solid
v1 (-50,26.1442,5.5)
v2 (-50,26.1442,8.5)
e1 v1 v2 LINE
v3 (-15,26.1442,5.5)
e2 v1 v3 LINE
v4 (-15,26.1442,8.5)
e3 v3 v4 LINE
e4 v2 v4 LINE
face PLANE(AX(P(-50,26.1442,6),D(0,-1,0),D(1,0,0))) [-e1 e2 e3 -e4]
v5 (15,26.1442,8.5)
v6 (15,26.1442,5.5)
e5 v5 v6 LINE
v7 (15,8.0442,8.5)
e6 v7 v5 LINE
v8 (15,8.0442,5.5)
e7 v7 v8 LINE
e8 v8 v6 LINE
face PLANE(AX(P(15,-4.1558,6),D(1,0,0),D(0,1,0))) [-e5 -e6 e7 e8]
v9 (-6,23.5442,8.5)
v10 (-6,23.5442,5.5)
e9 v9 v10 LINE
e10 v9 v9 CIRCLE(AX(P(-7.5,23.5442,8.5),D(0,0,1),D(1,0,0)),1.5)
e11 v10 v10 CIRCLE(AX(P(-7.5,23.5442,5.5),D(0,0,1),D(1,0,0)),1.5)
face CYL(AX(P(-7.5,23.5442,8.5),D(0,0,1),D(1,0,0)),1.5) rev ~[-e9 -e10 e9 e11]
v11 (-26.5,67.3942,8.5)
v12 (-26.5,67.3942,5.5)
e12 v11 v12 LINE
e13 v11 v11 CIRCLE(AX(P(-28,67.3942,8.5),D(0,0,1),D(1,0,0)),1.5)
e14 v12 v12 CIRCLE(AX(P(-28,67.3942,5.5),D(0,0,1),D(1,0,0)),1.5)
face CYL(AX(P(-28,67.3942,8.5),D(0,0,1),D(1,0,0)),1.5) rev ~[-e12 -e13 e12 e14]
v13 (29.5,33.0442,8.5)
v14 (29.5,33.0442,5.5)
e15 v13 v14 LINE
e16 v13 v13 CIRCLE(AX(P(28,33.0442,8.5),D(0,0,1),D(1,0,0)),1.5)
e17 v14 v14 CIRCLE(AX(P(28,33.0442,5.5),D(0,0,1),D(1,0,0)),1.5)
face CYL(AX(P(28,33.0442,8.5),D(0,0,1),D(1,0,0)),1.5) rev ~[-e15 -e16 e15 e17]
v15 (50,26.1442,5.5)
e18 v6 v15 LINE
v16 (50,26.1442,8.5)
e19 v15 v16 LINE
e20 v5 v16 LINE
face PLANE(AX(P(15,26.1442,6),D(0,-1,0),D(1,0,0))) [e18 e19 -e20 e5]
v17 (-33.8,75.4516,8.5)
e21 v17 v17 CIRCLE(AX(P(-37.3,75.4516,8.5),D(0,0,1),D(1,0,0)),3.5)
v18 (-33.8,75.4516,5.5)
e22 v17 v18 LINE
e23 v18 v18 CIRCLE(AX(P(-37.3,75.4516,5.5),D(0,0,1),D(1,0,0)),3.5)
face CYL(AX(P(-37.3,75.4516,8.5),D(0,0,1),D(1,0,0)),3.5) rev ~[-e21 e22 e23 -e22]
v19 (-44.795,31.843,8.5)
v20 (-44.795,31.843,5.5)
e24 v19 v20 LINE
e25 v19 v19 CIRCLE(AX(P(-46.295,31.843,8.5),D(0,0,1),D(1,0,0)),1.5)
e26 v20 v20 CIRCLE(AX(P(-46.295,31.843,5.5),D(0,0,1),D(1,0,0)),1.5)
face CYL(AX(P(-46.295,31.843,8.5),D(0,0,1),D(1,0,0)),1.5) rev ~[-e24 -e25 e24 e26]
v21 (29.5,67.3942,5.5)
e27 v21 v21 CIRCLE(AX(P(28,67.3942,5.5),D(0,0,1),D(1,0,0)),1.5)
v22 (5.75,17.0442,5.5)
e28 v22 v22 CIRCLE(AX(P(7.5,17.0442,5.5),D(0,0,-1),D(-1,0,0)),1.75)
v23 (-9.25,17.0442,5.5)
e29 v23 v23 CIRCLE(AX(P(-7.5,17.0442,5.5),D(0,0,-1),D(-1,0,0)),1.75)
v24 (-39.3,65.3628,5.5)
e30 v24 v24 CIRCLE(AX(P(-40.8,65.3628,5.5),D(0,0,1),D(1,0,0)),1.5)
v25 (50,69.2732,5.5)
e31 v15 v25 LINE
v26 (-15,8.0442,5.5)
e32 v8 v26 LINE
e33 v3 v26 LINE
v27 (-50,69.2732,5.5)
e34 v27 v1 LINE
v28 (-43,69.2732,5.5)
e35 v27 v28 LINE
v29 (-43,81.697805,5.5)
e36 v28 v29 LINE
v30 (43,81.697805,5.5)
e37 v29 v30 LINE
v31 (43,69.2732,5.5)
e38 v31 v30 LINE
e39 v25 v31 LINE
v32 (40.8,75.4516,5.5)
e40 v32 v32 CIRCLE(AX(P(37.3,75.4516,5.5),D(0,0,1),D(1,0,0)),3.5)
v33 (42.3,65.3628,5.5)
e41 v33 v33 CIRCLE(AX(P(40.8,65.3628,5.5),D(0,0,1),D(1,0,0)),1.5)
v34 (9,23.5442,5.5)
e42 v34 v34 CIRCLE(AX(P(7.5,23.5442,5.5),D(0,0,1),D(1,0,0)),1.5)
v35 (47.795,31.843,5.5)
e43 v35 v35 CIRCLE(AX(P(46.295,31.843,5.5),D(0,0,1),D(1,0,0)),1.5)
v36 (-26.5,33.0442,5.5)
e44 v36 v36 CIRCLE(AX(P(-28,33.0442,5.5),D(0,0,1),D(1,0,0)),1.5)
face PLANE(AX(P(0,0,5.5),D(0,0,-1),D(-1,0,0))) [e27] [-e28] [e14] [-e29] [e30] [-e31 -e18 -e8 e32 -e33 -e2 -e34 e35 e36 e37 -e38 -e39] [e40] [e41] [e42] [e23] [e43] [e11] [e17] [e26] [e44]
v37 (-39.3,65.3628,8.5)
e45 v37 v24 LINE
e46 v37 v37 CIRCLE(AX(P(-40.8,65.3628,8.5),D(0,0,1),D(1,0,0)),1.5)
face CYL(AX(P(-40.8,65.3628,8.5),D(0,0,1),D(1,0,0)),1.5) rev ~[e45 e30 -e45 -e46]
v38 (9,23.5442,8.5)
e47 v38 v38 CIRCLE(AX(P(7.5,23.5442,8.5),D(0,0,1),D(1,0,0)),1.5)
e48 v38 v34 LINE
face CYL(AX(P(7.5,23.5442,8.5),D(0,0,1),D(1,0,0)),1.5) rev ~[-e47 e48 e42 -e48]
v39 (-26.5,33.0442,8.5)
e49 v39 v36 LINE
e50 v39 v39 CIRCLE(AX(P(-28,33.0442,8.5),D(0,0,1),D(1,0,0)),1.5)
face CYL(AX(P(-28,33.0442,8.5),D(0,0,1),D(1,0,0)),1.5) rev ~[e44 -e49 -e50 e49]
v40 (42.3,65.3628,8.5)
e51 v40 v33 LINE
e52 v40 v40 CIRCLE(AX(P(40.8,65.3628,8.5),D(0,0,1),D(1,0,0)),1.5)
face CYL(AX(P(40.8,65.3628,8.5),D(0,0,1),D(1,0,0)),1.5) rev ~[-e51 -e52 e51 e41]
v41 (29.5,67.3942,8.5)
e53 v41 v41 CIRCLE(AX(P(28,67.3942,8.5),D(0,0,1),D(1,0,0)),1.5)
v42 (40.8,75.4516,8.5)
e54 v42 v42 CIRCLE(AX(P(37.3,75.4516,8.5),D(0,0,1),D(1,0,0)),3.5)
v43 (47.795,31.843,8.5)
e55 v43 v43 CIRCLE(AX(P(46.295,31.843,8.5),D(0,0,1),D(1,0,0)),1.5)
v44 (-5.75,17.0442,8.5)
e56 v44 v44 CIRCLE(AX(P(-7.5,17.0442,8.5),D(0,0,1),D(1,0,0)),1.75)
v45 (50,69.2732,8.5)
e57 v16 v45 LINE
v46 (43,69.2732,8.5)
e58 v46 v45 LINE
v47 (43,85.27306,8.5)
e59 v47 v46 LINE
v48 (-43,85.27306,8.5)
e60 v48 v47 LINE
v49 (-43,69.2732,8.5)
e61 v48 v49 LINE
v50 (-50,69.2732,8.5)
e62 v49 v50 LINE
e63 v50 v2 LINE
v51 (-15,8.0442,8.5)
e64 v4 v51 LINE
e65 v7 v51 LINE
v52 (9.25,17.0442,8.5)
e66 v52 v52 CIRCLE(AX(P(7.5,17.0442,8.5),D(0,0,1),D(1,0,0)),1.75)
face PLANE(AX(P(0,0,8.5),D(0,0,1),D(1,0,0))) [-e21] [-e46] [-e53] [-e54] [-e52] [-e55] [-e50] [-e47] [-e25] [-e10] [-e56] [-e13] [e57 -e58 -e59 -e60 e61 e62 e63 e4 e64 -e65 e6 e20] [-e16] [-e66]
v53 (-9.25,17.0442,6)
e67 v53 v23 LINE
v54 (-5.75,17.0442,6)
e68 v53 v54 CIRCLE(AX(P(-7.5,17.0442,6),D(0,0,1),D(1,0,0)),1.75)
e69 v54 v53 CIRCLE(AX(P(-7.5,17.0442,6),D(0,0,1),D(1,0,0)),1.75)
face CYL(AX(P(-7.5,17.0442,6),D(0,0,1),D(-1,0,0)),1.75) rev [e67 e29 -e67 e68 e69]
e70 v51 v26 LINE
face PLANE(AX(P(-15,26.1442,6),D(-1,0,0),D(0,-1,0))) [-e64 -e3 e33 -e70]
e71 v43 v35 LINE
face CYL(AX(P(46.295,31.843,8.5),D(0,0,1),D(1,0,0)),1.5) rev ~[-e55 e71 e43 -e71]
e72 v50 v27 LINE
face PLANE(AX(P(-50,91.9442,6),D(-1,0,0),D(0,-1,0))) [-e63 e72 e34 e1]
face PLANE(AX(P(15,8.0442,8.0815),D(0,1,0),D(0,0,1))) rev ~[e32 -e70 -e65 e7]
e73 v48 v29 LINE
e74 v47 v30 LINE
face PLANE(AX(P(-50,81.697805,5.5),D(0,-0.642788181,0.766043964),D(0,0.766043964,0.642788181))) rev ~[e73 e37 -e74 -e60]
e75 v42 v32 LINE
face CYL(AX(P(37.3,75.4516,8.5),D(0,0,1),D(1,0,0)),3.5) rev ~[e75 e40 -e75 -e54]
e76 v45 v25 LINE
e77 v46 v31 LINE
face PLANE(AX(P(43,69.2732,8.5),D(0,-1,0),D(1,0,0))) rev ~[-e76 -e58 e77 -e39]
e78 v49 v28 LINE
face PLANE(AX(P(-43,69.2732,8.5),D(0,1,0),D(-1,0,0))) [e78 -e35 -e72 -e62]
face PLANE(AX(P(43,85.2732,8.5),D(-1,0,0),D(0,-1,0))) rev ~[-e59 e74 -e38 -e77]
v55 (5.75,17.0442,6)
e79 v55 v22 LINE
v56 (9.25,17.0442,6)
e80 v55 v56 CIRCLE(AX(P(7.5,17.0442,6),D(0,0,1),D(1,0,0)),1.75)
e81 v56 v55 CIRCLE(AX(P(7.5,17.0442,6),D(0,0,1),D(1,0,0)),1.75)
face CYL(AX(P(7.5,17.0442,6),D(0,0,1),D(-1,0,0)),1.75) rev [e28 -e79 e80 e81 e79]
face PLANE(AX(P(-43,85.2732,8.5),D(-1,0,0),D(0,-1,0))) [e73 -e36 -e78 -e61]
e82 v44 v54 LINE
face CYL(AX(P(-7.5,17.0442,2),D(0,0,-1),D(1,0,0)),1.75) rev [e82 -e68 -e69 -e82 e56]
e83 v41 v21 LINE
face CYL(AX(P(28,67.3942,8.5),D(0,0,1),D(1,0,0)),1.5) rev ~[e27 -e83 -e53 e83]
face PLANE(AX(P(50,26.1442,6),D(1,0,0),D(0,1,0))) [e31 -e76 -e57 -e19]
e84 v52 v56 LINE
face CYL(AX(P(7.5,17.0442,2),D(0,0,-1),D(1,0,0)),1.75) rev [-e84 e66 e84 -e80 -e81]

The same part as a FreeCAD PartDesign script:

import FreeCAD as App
import Part
import Sketcher
Q = App.Units.Quantity

doc = App.newDocument("Part")
body = doc.addObject("PartDesign::Body", "Body")

# Sketch on XY plane
sketch1 = body.newObject("Sketcher::SketchObject", "Sketch")
sketch1.AttachmentSupport = (doc.getObject("XY_Plane"), [""])
sketch1.MapMode = "FlatFace"
sketch1.addGeometry(Part.LineSegment(App.Vector(15, -4.2, 0), App.Vector(15, 26.1, 0)), False)
sketch1.addGeometry(Part.LineSegment(App.Vector(15, 26.1, 0), App.Vector(50, 26.1, 0)), False)
sketch1.addGeometry(Part.LineSegment(App.Vector(50, 26.1, 0), App.Vector(50, 91.9, 0)), False)
sketch1.addGeometry(Part.LineSegment(App.Vector(50, 91.9, 0), App.Vector(-50, 91.9, 0)), False)
sketch1.addGeometry(Part.LineSegment(App.Vector(-50, 91.9, 0), App.Vector(-50, 26.1, 0)), False)
sketch1.addGeometry(Part.LineSegment(App.Vector(-50, 26.1, 0), App.Vector(-15, 26.1, 0)), False)
sketch1.addGeometry(Part.LineSegment(App.Vector(-15, 26.1, 0), App.Vector(-15, -4.2, 0)), False)
sketch1.addGeometry(Part.LineSegment(App.Vector(-15, -4.2, 0), App.Vector(15, -4.2, 0)), False)
sketch1.addGeometry(Part.Circle(App.Vector(-7.5, -1, 0), App.Vector(0, 0, 1), 1.8), False)
sketch1.addGeometry(Part.Circle(App.Vector(7.5, -1, 0), App.Vector(0, 0, 1), 1.8), False)
sketch1.addGeometry(Part.Circle(App.Vector(-7.5, 17, 0), App.Vector(0, 0, 1), 1.8), False)
sketch1.addGeometry(Part.Circle(App.Vector(7.5, 17, 0), App.Vector(0, 0, 1), 1.8), False)
sketch1.addConstraint(Sketcher.Constraint("Coincident", 0, 2, 1, 1))
sketch1.addConstraint(Sketcher.Constraint("Coincident", 1, 2, 2, 1))
sketch1.addConstraint(Sketcher.Constraint("Coincident", 2, 2, 3, 1))
sketch1.addConstraint(Sketcher.Constraint("Coincident", 3, 2, 4, 1))
sketch1.addConstraint(Sketcher.Constraint("Coincident", 4, 2, 5, 1))
sketch1.addConstraint(Sketcher.Constraint("Coincident", 5, 2, 6, 1))
sketch1.addConstraint(Sketcher.Constraint("Coincident", 6, 2, 7, 1))
sketch1.addConstraint(Sketcher.Constraint("Coincident", 7, 2, 0, 1))
sketch1.addConstraint(Sketcher.Constraint("Vertical", 0))
sketch1.addConstraint(Sketcher.Constraint("Horizontal", 1))
sketch1.addConstraint(Sketcher.Constraint("Vertical", 2))
sketch1.addConstraint(Sketcher.Constraint("Horizontal", 3))
sketch1.addConstraint(Sketcher.Constraint("Vertical", 4))
sketch1.addConstraint(Sketcher.Constraint("Horizontal", 5))
sketch1.addConstraint(Sketcher.Constraint("Vertical", 6))
sketch1.addConstraint(Sketcher.Constraint("Horizontal", 7))
sketch1.addConstraint(Sketcher.Constraint("Equal", 8, 9))
sketch1.addConstraint(Sketcher.Constraint("Equal", 9, 10))
sketch1.addConstraint(Sketcher.Constraint("Equal", 10, 11))
sketch1.addConstraint(Sketcher.Constraint("Symmetric", 8, 3, 9, 3, -2))
sketch1.addConstraint(Sketcher.Constraint("Symmetric", 10, 3, 11, 3, -2))
sketch1.addConstraint(Sketcher.Constraint("Symmetric", 1, 2, 4, 2, -2))
sketch1.addConstraint(Sketcher.Constraint("Vertical", 8, 3, 10, 3))
sketch1.addConstraint(Sketcher.Constraint("Equal", 1, 5))
sketch1.addConstraint(Sketcher.Constraint("DistanceX", 3, 2, 3, 1, 100.0))
sketch1.addConstraint(Sketcher.Constraint("Diameter", 8, 3.5))
sketch1.addConstraint(Sketcher.Constraint("DistanceX", 1, 1, 1, 2, 35.0))
sketch1.addConstraint(Sketcher.Constraint("DistanceY", 0, 1, 0, 2, 30.3))
sketch1.addConstraint(Sketcher.Constraint("DistanceY", 2, 1, 2, 2, 65.8))
sketch1.addConstraint(Sketcher.Constraint("DistanceX", 8, 3, 9, 3, 15.0))
sketch1.addConstraint(Sketcher.Constraint("DistanceY", 8, 3, 10, 3, 18.0))
sketch1.addConstraint(Sketcher.Constraint("DistanceY", 11, 3, 0, 2, 9.1))
sketch1.addConstraint(Sketcher.Constraint("DistanceY", 8, 3, -1, 1, 0.9558))
pad1 = body.newObject("PartDesign::Pad", "Pad")
pad1.Profile = sketch1
pad1.Length = 2

# Sketch on XY plane
sketch2 = body.newObject("Sketcher::SketchObject", "Sketch001")
sketch2.AttachmentSupport = (doc.getObject("XY_Plane"), [""])
sketch2.MapMode = "FlatFace"
sketch2.AttachmentOffset = App.Placement(App.Vector(0, 0, 2), App.Rotation())
sketch2.addGeometry(Part.LineSegment(App.Vector(-15, -4.2, 0), App.Vector(15, -4.2, 0)), False)
sketch2.addGeometry(Part.LineSegment(App.Vector(15, -4.2, 0), App.Vector(15, 26.1, 0)), False)
sketch2.addGeometry(Part.LineSegment(App.Vector(15, 26.1, 0), App.Vector(50, 26.1, 0)), False)
sketch2.addGeometry(Part.LineSegment(App.Vector(50, 26.1, 0), App.Vector(50, 91.9, 0)), False)
sketch2.addGeometry(Part.LineSegment(App.Vector(50, 91.9, 0), App.Vector(-50, 91.9, 0)), False)
sketch2.addGeometry(Part.LineSegment(App.Vector(-50, 91.9, 0), App.Vector(-50, 26.1, 0)), False)
sketch2.addGeometry(Part.LineSegment(App.Vector(-50, 26.1, 0), App.Vector(-15, 26.1, 0)), False)
sketch2.addGeometry(Part.LineSegment(App.Vector(-15, 26.1, 0), App.Vector(-15, -4.2, 0)), False)
sketch2.addGeometry(Part.Circle(App.Vector(-7.5, -1, 0), App.Vector(0, 0, 1), 1.8), False)
sketch2.addGeometry(Part.Circle(App.Vector(-7.5, 17, 0), App.Vector(0, 0, 1), 1.8), False)
sketch2.addGeometry(Part.Circle(App.Vector(7.5, -1, 0), App.Vector(0, 0, 1), 1.8), False)
sketch2.addGeometry(Part.Circle(App.Vector(7.5, 17, 0), App.Vector(0, 0, 1), 1.8), False)
sketch2.addConstraint(Sketcher.Constraint("Coincident", 0, 2, 1, 1))
sketch2.addConstraint(Sketcher.Constraint("Coincident", 1, 2, 2, 1))
sketch2.addConstraint(Sketcher.Constraint("Coincident", 2, 2, 3, 1))
sketch2.addConstraint(Sketcher.Constraint("Coincident", 3, 2, 4, 1))
sketch2.addConstraint(Sketcher.Constraint("Coincident", 4, 2, 5, 1))
sketch2.addConstraint(Sketcher.Constraint("Coincident", 5, 2, 6, 1))
sketch2.addConstraint(Sketcher.Constraint("Coincident", 6, 2, 7, 1))
sketch2.addConstraint(Sketcher.Constraint("Coincident", 7, 2, 0, 1))
sketch2.addConstraint(Sketcher.Constraint("Horizontal", 0))
sketch2.addConstraint(Sketcher.Constraint("Vertical", 1))
sketch2.addConstraint(Sketcher.Constraint("Horizontal", 2))
sketch2.addConstraint(Sketcher.Constraint("Vertical", 3))
sketch2.addConstraint(Sketcher.Constraint("Horizontal", 4))
sketch2.addConstraint(Sketcher.Constraint("Vertical", 5))
sketch2.addConstraint(Sketcher.Constraint("Horizontal", 6))
sketch2.addConstraint(Sketcher.Constraint("Vertical", 7))
sketch2.addConstraint(Sketcher.Constraint("Equal", 8, 9))
sketch2.addConstraint(Sketcher.Constraint("Equal", 9, 10))
sketch2.addConstraint(Sketcher.Constraint("Equal", 10, 11))
sketch2.addConstraint(Sketcher.Constraint("Symmetric", 8, 3, 10, 3, -2))
sketch2.addConstraint(Sketcher.Constraint("Symmetric", 9, 3, 11, 3, -2))
sketch2.addConstraint(Sketcher.Constraint("Symmetric", 2, 2, 5, 2, -2))
sketch2.addConstraint(Sketcher.Constraint("Vertical", 8, 3, 9, 3))
sketch2.addConstraint(Sketcher.Constraint("Equal", 2, 6))
sketch2.addConstraint(Sketcher.Constraint("Diameter", 8, 3.5))
sketch2.addConstraint(Sketcher.Constraint("DistanceX", 0, 1, 0, 2, 30.0))
sketch2.addConstraint(Sketcher.Constraint("DistanceX", 2, 1, 2, 2, 35.0))
sketch2.addConstraint(Sketcher.Constraint("DistanceY", 1, 1, 1, 2, 30.3))
sketch2.addConstraint(Sketcher.Constraint("DistanceY", 3, 1, 3, 2, 65.8))
sketch2.addConstraint(Sketcher.Constraint("DistanceY", 8, 3, 9, 3, 18.0))
sketch2.addConstraint(Sketcher.Constraint("DistanceX", 8, 3, 10, 3, 15.0))
sketch2.addConstraint(Sketcher.Constraint("DistanceY", 0, 2, 10, 3, 3.2))
sketch2.addConstraint(Sketcher.Constraint("DistanceY", 8, 3, -1, 1, 0.9558))
pad2 = body.newObject("PartDesign::Pad", "Pad001")
pad2.Profile = sketch2
pad2.Length = 7

# Sketch on XY plane
sketch3 = body.newObject("Sketcher::SketchObject", "Sketch002")
sketch3.AttachmentSupport = (doc.getObject("XY_Plane"), [""])
sketch3.MapMode = "FlatFace"
sketch3.AttachmentOffset = App.Placement(App.Vector(0, 0, 2), App.Rotation())
sketch3.addGeometry(Part.LineSegment(App.Vector(-15, -4.2, 0), App.Vector(15, -4.2, 0)), False)
sketch3.addGeometry(Part.LineSegment(App.Vector(15, -4.2, 0), App.Vector(15, 26.1, 0)), False)
sketch3.addGeometry(Part.LineSegment(App.Vector(15, 26.1, 0), App.Vector(50, 26.1, 0)), False)
sketch3.addGeometry(Part.LineSegment(App.Vector(50, 26.1, 0), App.Vector(50, 91.9, 0)), False)
sketch3.addGeometry(Part.LineSegment(App.Vector(50, 91.9, 0), App.Vector(-50, 91.9, 0)), False)
sketch3.addGeometry(Part.LineSegment(App.Vector(-50, 91.9, 0), App.Vector(-50, 26.1, 0)), False)
sketch3.addGeometry(Part.LineSegment(App.Vector(-50, 26.1, 0), App.Vector(-15, 26.1, 0)), False)
sketch3.addGeometry(Part.LineSegment(App.Vector(-15, 26.1, 0), App.Vector(-15, -4.2, 0)), False)
sketch3.addGeometry(Part.Circle(App.Vector(-7.5, -1, 0), App.Vector(0, 0, 1), 1.8), False)
sketch3.addGeometry(Part.Circle(App.Vector(-7.5, 17, 0), App.Vector(0, 0, 1), 1.8), False)
sketch3.addGeometry(Part.Circle(App.Vector(7.5, -1, 0), App.Vector(0, 0, 1), 1.8), False)
sketch3.addGeometry(Part.Circle(App.Vector(7.5, 17, 0), App.Vector(0, 0, 1), 1.8), False)
sketch3.addConstraint(Sketcher.Constraint("Coincident", 0, 2, 1, 1))
sketch3.addConstraint(Sketcher.Constraint("Coincident", 1, 2, 2, 1))
sketch3.addConstraint(Sketcher.Constraint("Coincident", 2, 2, 3, 1))
sketch3.addConstraint(Sketcher.Constraint("Coincident", 3, 2, 4, 1))
sketch3.addConstraint(Sketcher.Constraint("Coincident", 4, 2, 5, 1))
sketch3.addConstraint(Sketcher.Constraint("Coincident", 5, 2, 6, 1))
sketch3.addConstraint(Sketcher.Constraint("Coincident", 6, 2, 7, 1))
sketch3.addConstraint(Sketcher.Constraint("Coincident", 7, 2, 0, 1))
sketch3.addConstraint(Sketcher.Constraint("Horizontal", 0))
sketch3.addConstraint(Sketcher.Constraint("Vertical", 1))
sketch3.addConstraint(Sketcher.Constraint("Horizontal", 2))
sketch3.addConstraint(Sketcher.Constraint("Vertical", 3))
sketch3.addConstraint(Sketcher.Constraint("Horizontal", 4))
sketch3.addConstraint(Sketcher.Constraint("Vertical", 5))
sketch3.addConstraint(Sketcher.Constraint("Horizontal", 6))
sketch3.addConstraint(Sketcher.Constraint("Vertical", 7))
sketch3.addConstraint(Sketcher.Constraint("Equal", 8, 9))
sketch3.addConstraint(Sketcher.Constraint("Equal", 9, 10))
sketch3.addConstraint(Sketcher.Constraint("Equal", 10, 11))
sketch3.addConstraint(Sketcher.Constraint("Symmetric", 8, 3, 10, 3, -2))
sketch3.addConstraint(Sketcher.Constraint("Symmetric", 9, 3, 11, 3, -2))
sketch3.addConstraint(Sketcher.Constraint("Symmetric", 2, 2, 5, 2, -2))
sketch3.addConstraint(Sketcher.Constraint("Vertical", 8, 3, 9, 3))
sketch3.addConstraint(Sketcher.Constraint("Equal", 2, 6))
sketch3.addConstraint(Sketcher.Constraint("Diameter", 8, 3.5))
sketch3.addConstraint(Sketcher.Constraint("DistanceX", 0, 1, 0, 2, 30.0))
sketch3.addConstraint(Sketcher.Constraint("DistanceX", 2, 1, 2, 2, 35.0))
sketch3.addConstraint(Sketcher.Constraint("DistanceY", 1, 1, 1, 2, 30.3))
sketch3.addConstraint(Sketcher.Constraint("DistanceY", 3, 1, 3, 2, 65.8))
sketch3.addConstraint(Sketcher.Constraint("DistanceY", 8, 3, 9, 3, 18.0))
sketch3.addConstraint(Sketcher.Constraint("DistanceX", 8, 3, 10, 3, 15.0))
sketch3.addConstraint(Sketcher.Constraint("DistanceY", 0, 2, 10, 3, 3.2))
sketch3.addConstraint(Sketcher.Constraint("DistanceY", 8, 3, -1, 1, 0.9558))
pocket1 = body.newObject("PartDesign::Pocket", "Pocket")
pocket1.Profile = sketch3
pocket1.Length = 7

# Sketch on XY plane
sketch4 = body.newObject("Sketcher::SketchObject", "Sketch003")
sketch4.AttachmentSupport = (doc.getObject("XY_Plane"), [""])
sketch4.MapMode = "FlatFace"
sketch4.AttachmentOffset = App.Placement(App.Vector(0, 0, 2), App.Rotation())
sketch4.addGeometry(Part.LineSegment(App.Vector(-15, -4.2, 0), App.Vector(15, -4.2, 0)), False)
sketch4.addGeometry(Part.LineSegment(App.Vector(15, -4.2, 0), App.Vector(15, 26.1, 0)), False)
sketch4.addGeometry(Part.LineSegment(App.Vector(15, 26.1, 0), App.Vector(50, 26.1, 0)), False)
sketch4.addGeometry(Part.LineSegment(App.Vector(50, 26.1, 0), App.Vector(50, 91.9, 0)), False)
sketch4.addGeometry(Part.LineSegment(App.Vector(50, 91.9, 0), App.Vector(-50, 91.9, 0)), False)
sketch4.addGeometry(Part.LineSegment(App.Vector(-50, 91.9, 0), App.Vector(-50, 26.1, 0)), False)
sketch4.addGeometry(Part.LineSegment(App.Vector(-50, 26.1, 0), App.Vector(-15, 26.1, 0)), False)
sketch4.addGeometry(Part.LineSegment(App.Vector(-15, 26.1, 0), App.Vector(-15, -4.2, 0)), False)
sketch4.addGeometry(Part.Circle(App.Vector(-7.5, -1, 0), App.Vector(0, 0, 1), 1.8), False)
sketch4.addGeometry(Part.Circle(App.Vector(-7.5, 17, 0), App.Vector(0, 0, 1), 1.8), False)
sketch4.addGeometry(Part.Circle(App.Vector(7.5, -1, 0), App.Vector(0, 0, 1), 1.8), False)
sketch4.addGeometry(Part.Circle(App.Vector(7.5, 17, 0), App.Vector(0, 0, 1), 1.8), False)
sketch4.addConstraint(Sketcher.Constraint("Coincident", 0, 2, 1, 1))
sketch4.addConstraint(Sketcher.Constraint("Coincident", 1, 2, 2, 1))
sketch4.addConstraint(Sketcher.Constraint("Coincident", 2, 2, 3, 1))
sketch4.addConstraint(Sketcher.Constraint("Coincident", 3, 2, 4, 1))
sketch4.addConstraint(Sketcher.Constraint("Coincident", 4, 2, 5, 1))
sketch4.addConstraint(Sketcher.Constraint("Coincident", 5, 2, 6, 1))
sketch4.addConstraint(Sketcher.Constraint("Coincident", 6, 2, 7, 1))
sketch4.addConstraint(Sketcher.Constraint("Coincident", 7, 2, 0, 1))
sketch4.addConstraint(Sketcher.Constraint("Horizontal", 0))
sketch4.addConstraint(Sketcher.Constraint("Vertical", 1))
sketch4.addConstraint(Sketcher.Constraint("Horizontal", 2))
sketch4.addConstraint(Sketcher.Constraint("Vertical", 3))
sketch4.addConstraint(Sketcher.Constraint("Horizontal", 4))
sketch4.addConstraint(Sketcher.Constraint("Vertical", 5))
sketch4.addConstraint(Sketcher.Constraint("Horizontal", 6))
sketch4.addConstraint(Sketcher.Constraint("Vertical", 7))
sketch4.addConstraint(Sketcher.Constraint("Equal", 8, 9))
sketch4.addConstraint(Sketcher.Constraint("Equal", 9, 10))
sketch4.addConstraint(Sketcher.Constraint("Equal", 10, 11))
sketch4.addConstraint(Sketcher.Constraint("Symmetric", 8, 3, 10, 3, -2))
sketch4.addConstraint(Sketcher.Constraint("Symmetric", 9, 3, 11, 3, -2))
sketch4.addConstraint(Sketcher.Constraint("Symmetric", 2, 2, 5, 2, -2))
sketch4.addConstraint(Sketcher.Constraint("Vertical", 8, 3, 9, 3))
sketch4.addConstraint(Sketcher.Constraint("Equal", 2, 6))
sketch4.addConstraint(Sketcher.Constraint("Diameter", 8, 3.5))
sketch4.addConstraint(Sketcher.Constraint("DistanceX", 0, 1, 0, 2, 30.0))
sketch4.addConstraint(Sketcher.Constraint("DistanceX", 2, 1, 2, 2, 35.0))
sketch4.addConstraint(Sketcher.Constraint("DistanceY", 1, 1, 1, 2, 30.3))
sketch4.addConstraint(Sketcher.Constraint("DistanceY", 3, 1, 3, 2, 65.8))
sketch4.addConstraint(Sketcher.Constraint("DistanceY", 8, 3, 9, 3, 18.0))
sketch4.addConstraint(Sketcher.Constraint("DistanceX", 8, 3, 10, 3, 15.0))
sketch4.addConstraint(Sketcher.Constraint("DistanceY", 0, 2, 10, 3, 3.2))
sketch4.addConstraint(Sketcher.Constraint("DistanceY", 8, 3, -1, 1, 0.9558))
pocket2 = body.newObject("PartDesign::Pocket", "Pocket001")
pocket2.Profile = sketch4
pocket2.Length = 4
pocket2.Reversed = True

# Sketch on XY plane
sketch5 = body.newObject("Sketcher::SketchObject", "Sketch004")
sketch5.AttachmentSupport = (doc.getObject("XY_Plane"), [""])
sketch5.MapMode = "FlatFace"
sketch5.AttachmentOffset = App.Placement(App.Vector(0, 0, 6), App.Rotation())
sketch5.addGeometry(Part.LineSegment(App.Vector(50, 26.1, 0), App.Vector(15, 26.1, 0)), False)
sketch5.addGeometry(Part.LineSegment(App.Vector(15, 26.1, 0), App.Vector(15, -4.2, 0)), False)
sketch5.addGeometry(Part.LineSegment(App.Vector(15, -4.2, 0), App.Vector(-15, -4.2, 0)), False)
sketch5.addGeometry(Part.LineSegment(App.Vector(-15, -4.2, 0), App.Vector(-15, 26.1, 0)), False)
sketch5.addGeometry(Part.LineSegment(App.Vector(-15, 26.1, 0), App.Vector(-50, 26.1, 0)), False)
sketch5.addGeometry(Part.LineSegment(App.Vector(-50, 26.1, 0), App.Vector(-50, 91.9, 0)), False)
sketch5.addGeometry(Part.LineSegment(App.Vector(-50, 91.9, 0), App.Vector(50, 91.9, 0)), False)
sketch5.addGeometry(Part.LineSegment(App.Vector(50, 91.9, 0), App.Vector(50, 26.1, 0)), False)
sketch5.addGeometry(Part.Circle(App.Vector(7.5, -1, 0), App.Vector(0, 0, 1), 1.8), False)
sketch5.addGeometry(Part.Circle(App.Vector(7.5, 17, 0), App.Vector(0, 0, 1), 1.8), False)
sketch5.addGeometry(Part.Circle(App.Vector(-7.5, -1, 0), App.Vector(0, 0, 1), 1.8), False)
sketch5.addGeometry(Part.Circle(App.Vector(-7.5, 17, 0), App.Vector(0, 0, 1), 1.8), False)
sketch5.addConstraint(Sketcher.Constraint("Coincident", 0, 2, 1, 1))
sketch5.addConstraint(Sketcher.Constraint("Coincident", 1, 2, 2, 1))
sketch5.addConstraint(Sketcher.Constraint("Coincident", 2, 2, 3, 1))
sketch5.addConstraint(Sketcher.Constraint("Coincident", 3, 2, 4, 1))
sketch5.addConstraint(Sketcher.Constraint("Coincident", 4, 2, 5, 1))
sketch5.addConstraint(Sketcher.Constraint("Coincident", 5, 2, 6, 1))
sketch5.addConstraint(Sketcher.Constraint("Coincident", 6, 2, 7, 1))
sketch5.addConstraint(Sketcher.Constraint("Coincident", 7, 2, 0, 1))
sketch5.addConstraint(Sketcher.Constraint("Horizontal", 0))
sketch5.addConstraint(Sketcher.Constraint("Vertical", 1))
sketch5.addConstraint(Sketcher.Constraint("Horizontal", 2))
sketch5.addConstraint(Sketcher.Constraint("Vertical", 3))
sketch5.addConstraint(Sketcher.Constraint("Horizontal", 4))
sketch5.addConstraint(Sketcher.Constraint("Vertical", 5))
sketch5.addConstraint(Sketcher.Constraint("Horizontal", 6))
sketch5.addConstraint(Sketcher.Constraint("Vertical", 7))
sketch5.addConstraint(Sketcher.Constraint("Equal", 8, 9))
sketch5.addConstraint(Sketcher.Constraint("Equal", 9, 10))
sketch5.addConstraint(Sketcher.Constraint("Equal", 10, 11))
sketch5.addConstraint(Sketcher.Constraint("Symmetric", 8, 3, 10, 3, -2))
sketch5.addConstraint(Sketcher.Constraint("Symmetric", 9, 3, 11, 3, -2))
sketch5.addConstraint(Sketcher.Constraint("Symmetric", 0, 2, 3, 2, -2))
sketch5.addConstraint(Sketcher.Constraint("Vertical", 8, 3, 9, 3))
sketch5.addConstraint(Sketcher.Constraint("Equal", 0, 4))
sketch5.addConstraint(Sketcher.Constraint("Diameter", 8, 3.5))
sketch5.addConstraint(Sketcher.Constraint("DistanceX", 0, 2, 0, 1, 35.0))
sketch5.addConstraint(Sketcher.Constraint("DistanceX", 2, 2, 2, 1, 30.0))
sketch5.addConstraint(Sketcher.Constraint("DistanceY", 1, 2, 1, 1, 30.3))
sketch5.addConstraint(Sketcher.Constraint("DistanceY", 5, 1, 5, 2, 65.8))
sketch5.addConstraint(Sketcher.Constraint("DistanceY", 8, 3, 9, 3, 18.0))
sketch5.addConstraint(Sketcher.Constraint("DistanceX", 10, 3, 8, 3, 15.0))
sketch5.addConstraint(Sketcher.Constraint("DistanceY", 9, 3, 0, 2, 9.1))
sketch5.addConstraint(Sketcher.Constraint("DistanceY", 8, 3, -1, 1, 0.9558))
pad3 = body.newObject("PartDesign::Pad", "Pad002")
pad3.Profile = sketch5
pad3.Length = 0.5
pad3.Reversed = True

# Sketch on XY plane
sketch6 = body.newObject("Sketcher::SketchObject", "Sketch005")
sketch6.AttachmentSupport = (doc.getObject("XY_Plane"), [""])
sketch6.MapMode = "FlatFace"
sketch6.AttachmentOffset = App.Placement(App.Vector(0, 0, 9), App.Rotation())
sketch6.addGeometry(Part.LineSegment(App.Vector(15, -4.2, 0), App.Vector(15, 26.1, 0)), False)
sketch6.addGeometry(Part.LineSegment(App.Vector(15, 26.1, 0), App.Vector(50, 26.1, 0)), False)
sketch6.addGeometry(Part.LineSegment(App.Vector(50, 26.1, 0), App.Vector(50, 91.9, 0)), False)
sketch6.addGeometry(Part.LineSegment(App.Vector(50, 91.9, 0), App.Vector(-50, 91.9, 0)), False)
sketch6.addGeometry(Part.LineSegment(App.Vector(-50, 91.9, 0), App.Vector(-50, 26.1, 0)), False)
sketch6.addGeometry(Part.LineSegment(App.Vector(-50, 26.1, 0), App.Vector(-15, 26.1, 0)), False)
sketch6.addGeometry(Part.LineSegment(App.Vector(-15, 26.1, 0), App.Vector(-15, -4.2, 0)), False)
sketch6.addGeometry(Part.LineSegment(App.Vector(-15, -4.2, 0), App.Vector(15, -4.2, 0)), False)
sketch6.addGeometry(Part.Circle(App.Vector(-7.5, -1, 0), App.Vector(0, 0, 1), 1.8), False)
sketch6.addGeometry(Part.Circle(App.Vector(-7.5, 17, 0), App.Vector(0, 0, 1), 1.8), False)
sketch6.addGeometry(Part.Circle(App.Vector(7.5, -1, 0), App.Vector(0, 0, 1), 1.8), False)
sketch6.addGeometry(Part.Circle(App.Vector(7.5, 17, 0), App.Vector(0, 0, 1), 1.8), False)
sketch6.addConstraint(Sketcher.Constraint("Coincident", 0, 2, 1, 1))
sketch6.addConstraint(Sketcher.Constraint("Coincident", 1, 2, 2, 1))
sketch6.addConstraint(Sketcher.Constraint("Coincident", 2, 2, 3, 1))
sketch6.addConstraint(Sketcher.Constraint("Coincident", 3, 2, 4, 1))
sketch6.addConstraint(Sketcher.Constraint("Coincident", 4, 2, 5, 1))
sketch6.addConstraint(Sketcher.Constraint("Coincident", 5, 2, 6, 1))
sketch6.addConstraint(Sketcher.Constraint("Coincident", 6, 2, 7, 1))
sketch6.addConstraint(Sketcher.Constraint("Coincident", 7, 2, 0, 1))
sketch6.addConstraint(Sketcher.Constraint("Vertical", 0))
sketch6.addConstraint(Sketcher.Constraint("Horizontal", 1))
sketch6.addConstraint(Sketcher.Constraint("Vertical", 2))
sketch6.addConstraint(Sketcher.Constraint("Horizontal", 3))
sketch6.addConstraint(Sketcher.Constraint("Vertical", 4))
sketch6.addConstraint(Sketcher.Constraint("Horizontal", 5))
sketch6.addConstraint(Sketcher.Constraint("Vertical", 6))
sketch6.addConstraint(Sketcher.Constraint("Horizontal", 7))
sketch6.addConstraint(Sketcher.Constraint("Equal", 8, 9))
sketch6.addConstraint(Sketcher.Constraint("Equal", 9, 10))
sketch6.addConstraint(Sketcher.Constraint("Equal", 10, 11))
sketch6.addConstraint(Sketcher.Constraint("Symmetric", 8, 3, 10, 3, -2))
sketch6.addConstraint(Sketcher.Constraint("Symmetric", 9, 3, 11, 3, -2))
sketch6.addConstraint(Sketcher.Constraint("Symmetric", 1, 2, 4, 2, -2))
sketch6.addConstraint(Sketcher.Constraint("Vertical", 8, 3, 9, 3))
sketch6.addConstraint(Sketcher.Constraint("Equal", 1, 5))
sketch6.addConstraint(Sketcher.Constraint("Diameter", 8, 3.5))
sketch6.addConstraint(Sketcher.Constraint("DistanceX", 1, 1, 1, 2, 35.0))
sketch6.addConstraint(Sketcher.Constraint("DistanceX", 3, 2, 3, 1, 100.0))
sketch6.addConstraint(Sketcher.Constraint("DistanceY", 0, 1, 0, 2, 30.3))
sketch6.addConstraint(Sketcher.Constraint("DistanceY", 2, 1, 2, 2, 65.8))
sketch6.addConstraint(Sketcher.Constraint("DistanceY", 8, 3, 9, 3, 18.0))
sketch6.addConstraint(Sketcher.Constraint("DistanceX", 8, 3, 10, 3, 15.0))
sketch6.addConstraint(Sketcher.Constraint("DistanceY", 11, 3, 0, 2, 9.1))
sketch6.addConstraint(Sketcher.Constraint("DistanceY", 8, 3, -1, 1, 0.9558))
pocket3 = body.newObject("PartDesign::Pocket", "Pocket002")
pocket3.Profile = sketch6
pocket3.Length = 0.5

# Sketch on XY plane
sketch7 = body.newObject("Sketcher::SketchObject", "Sketch006")
sketch7.AttachmentSupport = (doc.getObject("XY_Plane"), [""])
sketch7.MapMode = "FlatFace"
sketch7.AttachmentOffset = App.Placement(App.Vector(0, 0, 5.5), App.Rotation())
sketch7.addGeometry(Part.Circle(App.Vector(-7.5, 35, 0), App.Vector(0, 0, 1), 1.5), False)
sketch7.addGeometry(Part.Circle(App.Vector(7.5, 35, 0), App.Vector(0, 0, 1), 1.5), False)
sketch7.addConstraint(Sketcher.Constraint("Equal", 0, 1))
sketch7.addConstraint(Sketcher.Constraint("Symmetric", 0, 3, 1, 3, -2))
sketch7.addConstraint(Sketcher.Constraint("Diameter", 0, 3.0))
sketch7.addConstraint(Sketcher.Constraint("DistanceX", 0, 3, 1, 3, 15.0))
sketch7.addConstraint(Sketcher.Constraint("DistanceY", -1, 1, 0, 3, 35.0442))
pocket4 = body.newObject("PartDesign::Pocket", "Pocket003")
pocket4.Profile = sketch7
pocket4.Type = "ThroughAll"
pocket4.Reversed = True

# Sketch on YZ plane
sketch8 = body.newObject("Sketcher::SketchObject", "Sketch007")
sketch8.AttachmentSupport = (doc.getObject("YZ_Plane"), [""])
sketch8.MapMode = "FlatFace"
sketch8.AttachmentOffset = App.Placement(App.Vector(0, 0, 15), App.Rotation())
sketch8.addGeometry(Part.LineSegment(App.Vector(8, 8.5, 0), App.Vector(-4.2, 8.5, 0)), False)
sketch8.addGeometry(Part.LineSegment(App.Vector(-4.2, 8.5, 0), App.Vector(-4.2, 5.5, 0)), False)
sketch8.addGeometry(Part.LineSegment(App.Vector(-4.2, 5.5, 0), App.Vector(8, 5.5, 0)), False)
sketch8.addGeometry(Part.LineSegment(App.Vector(8, 5.5, 0), App.Vector(8, 8.5, 0)), False)
sketch8.addConstraint(Sketcher.Constraint("Coincident", 0, 2, 1, 1))
sketch8.addConstraint(Sketcher.Constraint("Coincident", 1, 2, 2, 1))
sketch8.addConstraint(Sketcher.Constraint("Coincident", 2, 2, 3, 1))
sketch8.addConstraint(Sketcher.Constraint("Coincident", 3, 2, 0, 1))
sketch8.addConstraint(Sketcher.Constraint("Horizontal", 0))
sketch8.addConstraint(Sketcher.Constraint("Vertical", 1))
sketch8.addConstraint(Sketcher.Constraint("Horizontal", 2))
sketch8.addConstraint(Sketcher.Constraint("Vertical", 3))
sketch8.addConstraint(Sketcher.Constraint("DistanceY", 1, 2, 1, 1, 3.0))
sketch8.addConstraint(Sketcher.Constraint("DistanceX", 0, 2, 0, 1, 12.2))
sketch8.addConstraint(Sketcher.Constraint("DistanceY", -1, 1, 0, 2, 8.5))
sketch8.addConstraint(Sketcher.Constraint("DistanceX", 0, 2, -1, 1, 4.1558))
pocket5 = body.newObject("PartDesign::Pocket", "Pocket004")
pocket5.Profile = sketch8
pocket5.Type = "ThroughAll"

# Sketch on YZ plane
sketch9 = body.newObject("Sketcher::SketchObject", "Sketch008")
sketch9.AttachmentSupport = (doc.getObject("YZ_Plane"), [""])
sketch9.MapMode = "FlatFace"
sketch9.AttachmentOffset = App.Placement(App.Vector(0, 0, -50), App.Rotation())
sketch9.addGeometry(Part.LineSegment(App.Vector(83.1, 5.5, 0), App.Vector(86.1, 8.5, 0)), False)
sketch9.addGeometry(Part.LineSegment(App.Vector(86.1, 8.5, 0), App.Vector(91.9, 8.5, 0)), False)
sketch9.addGeometry(Part.LineSegment(App.Vector(91.9, 8.5, 0), App.Vector(91.9, 5.5, 0)), False)
sketch9.addGeometry(Part.LineSegment(App.Vector(91.9, 5.5, 0), App.Vector(83.1, 5.5, 0)), False)
sketch9.addConstraint(Sketcher.Constraint("Coincident", 0, 2, 1, 1))
sketch9.addConstraint(Sketcher.Constraint("Coincident", 1, 2, 2, 1))
sketch9.addConstraint(Sketcher.Constraint("Coincident", 2, 2, 3, 1))
sketch9.addConstraint(Sketcher.Constraint("Coincident", 3, 2, 0, 1))
sketch9.addConstraint(Sketcher.Constraint("Horizontal", 1))
sketch9.addConstraint(Sketcher.Constraint("Vertical", 2))
sketch9.addConstraint(Sketcher.Constraint("Horizontal", 3))
sketch9.addConstraint(Sketcher.Constraint("DistanceY", 2, 2, 2, 1, 3.0))
sketch9.addConstraint(Sketcher.Constraint("Angle", 0, Q("45 deg")))
sketch9.addConstraint(Sketcher.Constraint("DistanceY", -1, 1, 0, 2, 8.5))
sketch9.addConstraint(Sketcher.Constraint("DistanceX", 1, 1, 1, 2, 5.8383))
sketch9.addConstraint(Sketcher.Constraint("DistanceX", -1, 1, 0, 2, 86.106))
pocket6 = body.newObject("PartDesign::Pocket", "Pocket005")
pocket6.Profile = sketch9
pocket6.Type = "ThroughAll"
pocket6.Reversed = True

# Sketch on YZ plane
sketch10 = body.newObject("Sketcher::SketchObject", "Sketch009")
sketch10.AttachmentSupport = (doc.getObject("YZ_Plane"), [""])
sketch10.MapMode = "FlatFace"
sketch10.AttachmentOffset = App.Placement(App.Vector(0, 0, -50), App.Rotation())
sketch10.addGeometry(Part.LineSegment(App.Vector(85.3, 8.5, 0), App.Vector(86.1, 8.5, 0)), False)
sketch10.addGeometry(Part.LineSegment(App.Vector(86.1, 8.5, 0), App.Vector(83.1, 5.5, 0)), False)
sketch10.addGeometry(Part.LineSegment(App.Vector(83.1, 5.5, 0), App.Vector(81.7, 5.5, 0)), False)
sketch10.addGeometry(Part.LineSegment(App.Vector(81.7, 5.5, 0), App.Vector(85.3, 8.5, 0)), False)
sketch10.addConstraint(Sketcher.Constraint("Coincident", 0, 2, 1, 1))
sketch10.addConstraint(Sketcher.Constraint("Coincident", 1, 2, 2, 1))
sketch10.addConstraint(Sketcher.Constraint("Coincident", 2, 2, 3, 1))
sketch10.addConstraint(Sketcher.Constraint("Coincident", 3, 2, 0, 1))
sketch10.addConstraint(Sketcher.Constraint("Horizontal", 0))
sketch10.addConstraint(Sketcher.Constraint("Horizontal", 2))
sketch10.addConstraint(Sketcher.Constraint("Angle", 3, Q("40 deg")))
sketch10.addConstraint(Sketcher.Constraint("DistanceX", 1, 2, 0, 2, 3.0))
sketch10.addConstraint(Sketcher.Constraint("DistanceY", 1, 2, 0, 2, 3.0))
sketch10.addConstraint(Sketcher.Constraint("DistanceY", -1, 1, 0, 2, 8.5))
sketch10.addConstraint(Sketcher.Constraint("DistanceX", 2, 2, 2, 1, 1.408))
sketch10.addConstraint(Sketcher.Constraint("DistanceX", -1, 1, 0, 2, 86.106))
pocket7 = body.newObject("PartDesign::Pocket", "Pocket006")
pocket7.Profile = sketch10
pocket7.Type = "ThroughAll"
pocket7.Reversed = True

# Sketch on XY plane
sketch11 = body.newObject("Sketcher::SketchObject", "Sketch010")
sketch11.AttachmentSupport = (doc.getObject("XY_Plane"), [""])
sketch11.MapMode = "FlatFace"
sketch11.AttachmentOffset = App.Placement(App.Vector(0, 0, 8.5), App.Rotation())
sketch11.addGeometry(Part.Circle(App.Vector(21.5, 35, 0), App.Vector(0, 0, 1), 1.5), False)
sketch11.addGeometry(Part.Circle(App.Vector(-21.5, 35, 0), App.Vector(0, 0, 1), 1.5), False)
sketch11.addConstraint(Sketcher.Constraint("Equal", 0, 1))
sketch11.addConstraint(Sketcher.Constraint("Symmetric", 0, 3, 1, 3, -2))
sketch11.addConstraint(Sketcher.Constraint("Diameter", 0, 3.0))
sketch11.addConstraint(Sketcher.Constraint("DistanceX", 1, 3, 0, 3, 43.0))
sketch11.addConstraint(Sketcher.Constraint("DistanceY", -1, 1, 0, 3, 35.0442))
pocket8 = body.newObject("PartDesign::Pocket", "Pocket007")
pocket8.Profile = sketch11
pocket8.Type = "ThroughAll"

# Sketch on XY plane
sketch12 = body.newObject("Sketcher::SketchObject", "Sketch011")
sketch12.AttachmentSupport = (doc.getObject("XY_Plane"), [""])
sketch12.MapMode = "FlatFace"
sketch12.AttachmentOffset = App.Placement(App.Vector(0, 0, 8.5), App.Rotation())
sketch12.addGeometry(Part.Circle(App.Vector(-38.1, 75.4, 0), App.Vector(0, 0, 1), 3), False)
sketch12.addGeometry(Part.Circle(App.Vector(38.1, 75.4, 0), App.Vector(0, 0, 1), 3), False)
sketch12.addConstraint(Sketcher.Constraint("Equal", 0, 1))
sketch12.addConstraint(Sketcher.Constraint("Symmetric", 0, 3, 1, 3, -2))
sketch12.addConstraint(Sketcher.Constraint("Diameter", 0, 6.0))
sketch12.addConstraint(Sketcher.Constraint("DistanceX", 0, 3, -1, 1, 38.1278))
sketch12.addConstraint(Sketcher.Constraint("DistanceY", -1, 1, 0, 3, 75.3915))
pocket9 = body.newObject("PartDesign::Pocket", "Pocket008")
pocket9.Profile = sketch12
pocket9.Length = 10

# Sketch on XY plane
sketch13 = body.newObject("Sketcher::SketchObject", "Sketch012")
sketch13.AttachmentSupport = (doc.getObject("XY_Plane"), [""])
sketch13.MapMode = "FlatFace"
sketch13.AttachmentOffset = App.Placement(App.Vector(0, 0, 8.5), App.Rotation())
sketch13.addGeometry(Part.Circle(App.Vector(-46.3, 31.8, 0), App.Vector(0, 0, 1), 1.5), False)
sketch13.addGeometry(Part.Circle(App.Vector(-40.8, 65.4, 0), App.Vector(0, 0, 1), 1.5), False)
sketch13.addGeometry(Part.Circle(App.Vector(40.8, 65.4, 0), App.Vector(0, 0, 1), 1.5), False)
sketch13.addGeometry(Part.Circle(App.Vector(46.3, 31.8, 0), App.Vector(0, 0, 1), 1.5), False)
sketch13.addGeometry(Part.Circle(App.Vector(-28, 67.4, 0), App.Vector(0, 0, 1), 1.5), False)
sketch13.addGeometry(Part.Circle(App.Vector(-28, 33, 0), App.Vector(0, 0, 1), 1.5), False)
sketch13.addGeometry(Part.Circle(App.Vector(28, 33, 0), App.Vector(0, 0, 1), 1.5), False)
sketch13.addGeometry(Part.Circle(App.Vector(28, 67.4, 0), App.Vector(0, 0, 1), 1.5), False)
sketch13.addConstraint(Sketcher.Constraint("Equal", 0, 1))
sketch13.addConstraint(Sketcher.Constraint("Equal", 1, 2))
sketch13.addConstraint(Sketcher.Constraint("Equal", 2, 3))
sketch13.addConstraint(Sketcher.Constraint("Equal", 3, 4))
sketch13.addConstraint(Sketcher.Constraint("Equal", 4, 5))
sketch13.addConstraint(Sketcher.Constraint("Equal", 5, 6))
sketch13.addConstraint(Sketcher.Constraint("Equal", 6, 7))
sketch13.addConstraint(Sketcher.Constraint("Symmetric", 1, 3, 2, 3, -2))
sketch13.addConstraint(Sketcher.Constraint("Symmetric", 0, 3, 3, 3, -2))
sketch13.addConstraint(Sketcher.Constraint("Symmetric", 5, 3, 6, 3, -2))
sketch13.addConstraint(Sketcher.Constraint("Symmetric", 4, 3, 7, 3, -2))
sketch13.addConstraint(Sketcher.Constraint("Vertical", 4, 3, 5, 3))
sketch13.addConstraint(Sketcher.Constraint("Diameter", 0, 3.0))
sketch13.addConstraint(Sketcher.Constraint("DistanceX", 4, 3, -1, 1, 28.0))
sketch13.addConstraint(Sketcher.Constraint("DistanceX", 1, 3, -1, 1, 40.8))
sketch13.addConstraint(Sketcher.Constraint("DistanceX", 0, 3, 3, 3, 92.59))
sketch13.addConstraint(Sketcher.Constraint("DistanceY", 5, 3, 4, 3, 34.35))
sketch13.addConstraint(Sketcher.Constraint("DistanceY", -1, 1, 0, 3, 31.843))
sketch13.addConstraint(Sketcher.Constraint("DistanceY", -1, 1, 1, 3, 65.3628))
sketch13.addConstraint(Sketcher.Constraint("DistanceY", -1, 1, 4, 3, 67.3942))
pocket10 = body.newObject("PartDesign::Pocket", "Pocket009")
pocket10.Profile = sketch13
pocket10.Length = 10

# Sketch on XY plane
sketch14 = body.newObject("Sketcher::SketchObject", "Sketch013")
sketch14.AttachmentSupport = (doc.getObject("XY_Plane"), [""])
sketch14.MapMode = "FlatFace"
sketch14.AttachmentOffset = App.Placement(App.Vector(0, 0, 8.5), App.Rotation())
sketch14.addGeometry(Part.Circle(App.Vector(-21.5, 35, 0), App.Vector(0, 0, 1), 1.5), False)
sketch14.addGeometry(Part.Circle(App.Vector(21.5, 35, 0), App.Vector(0, 0, 1), 1.5), False)
sketch14.addGeometry(Part.Circle(App.Vector(-7.5, 35, 0), App.Vector(0, 0, 1), 1.5), False)
sketch14.addGeometry(Part.Circle(App.Vector(7.5, 35, 0), App.Vector(0, 0, 1), 1.5), False)
sketch14.addConstraint(Sketcher.Constraint("Equal", 0, 1))
sketch14.addConstraint(Sketcher.Constraint("Equal", 1, 2))
sketch14.addConstraint(Sketcher.Constraint("Equal", 2, 3))
sketch14.addConstraint(Sketcher.Constraint("Symmetric", 0, 3, 1, 3, -2))
sketch14.addConstraint(Sketcher.Constraint("Symmetric", 2, 3, 3, 3, -2))
sketch14.addConstraint(Sketcher.Constraint("Horizontal", 1, 3, 2, 3))
sketch14.addConstraint(Sketcher.Constraint("Diameter", 0, 3.0))
sketch14.addConstraint(Sketcher.Constraint("DistanceX", 0, 3, 1, 3, 43.0))
sketch14.addConstraint(Sketcher.Constraint("DistanceX", 0, 3, 2, 3, 14.0))
sketch14.addConstraint(Sketcher.Constraint("DistanceY", -1, 1, 0, 3, 35.0442))
pad4 = body.newObject("PartDesign::Pad", "Pad003")
pad4.Profile = sketch14
pad4.Length = 3
pad4.Reversed = True

# Sketch on XY plane
sketch15 = body.newObject("Sketcher::SketchObject", "Sketch014")
sketch15.AttachmentSupport = (doc.getObject("XY_Plane"), [""])
sketch15.MapMode = "FlatFace"
sketch15.AttachmentOffset = App.Placement(App.Vector(0, 0, 8.5), App.Rotation())
sketch15.addGeometry(Part.Circle(App.Vector(7.5, 23.5, 0), App.Vector(0, 0, 1), 1.5), False)
sketch15.addGeometry(Part.Circle(App.Vector(-7.5, 23.5, 0), App.Vector(0, 0, 1), 1.5), False)
sketch15.addConstraint(Sketcher.Constraint("Equal", 0, 1))
sketch15.addConstraint(Sketcher.Constraint("Symmetric", 0, 3, 1, 3, -2))
sketch15.addConstraint(Sketcher.Constraint("Diameter", 0, 3.0))
sketch15.addConstraint(Sketcher.Constraint("DistanceX", 1, 3, 0, 3, 15.0))
sketch15.addConstraint(Sketcher.Constraint("DistanceY", -1, 1, 0, 3, 23.5442))
pocket11 = body.newObject("PartDesign::Pocket", "Pocket010")
pocket11.Profile = sketch15
pocket11.Length = 10

# Sketch on XY plane
sketch16 = body.newObject("Sketcher::SketchObject", "Sketch015")
sketch16.AttachmentSupport = (doc.getObject("XY_Plane"), [""])
sketch16.MapMode = "FlatFace"
sketch16.AttachmentOffset = App.Placement(App.Vector(0, 0, 8.5), App.Rotation())
sketch16.addGeometry(Part.Circle(App.Vector(38.1, 75.4, 0), App.Vector(0, 0, 1), 3), False)
sketch16.addGeometry(Part.Circle(App.Vector(-38.1, 75.4, 0), App.Vector(0, 0, 1), 3), False)
sketch16.addConstraint(Sketcher.Constraint("Equal", 0, 1))
sketch16.addConstraint(Sketcher.Constraint("Symmetric", 0, 3, 1, 3, -2))
sketch16.addConstraint(Sketcher.Constraint("Diameter", 0, 6.0))
sketch16.addConstraint(Sketcher.Constraint("DistanceX", -1, 1, 0, 3, 38.1278))
sketch16.addConstraint(Sketcher.Constraint("DistanceY", -1, 1, 0, 3, 75.3915))
pad5 = body.newObject("PartDesign::Pad", "Pad004")
pad5.Profile = sketch16
pad5.Length = 3
pad5.Reversed = True

# Sketch on XY plane
sketch17 = body.newObject("Sketcher::SketchObject", "Sketch016")
sketch17.AttachmentSupport = (doc.getObject("XY_Plane"), [""])
sketch17.MapMode = "FlatFace"
sketch17.AttachmentOffset = App.Placement(App.Vector(0, 0, 8.5), App.Rotation())
sketch17.addGeometry(Part.Circle(App.Vector(-37.3, 75.5, 0), App.Vector(0, 0, 1), 3.5), False)
sketch17.addGeometry(Part.Circle(App.Vector(37.3, 75.5, 0), App.Vector(0, 0, 1), 3.5), False)
sketch17.addConstraint(Sketcher.Constraint("Equal", 0, 1))
sketch17.addConstraint(Sketcher.Constraint("Symmetric", 0, 3, 1, 3, -2))
sketch17.addConstraint(Sketcher.Constraint("Diameter", 0, 7.0))
sketch17.addConstraint(Sketcher.Constraint("DistanceX", 0, 3, -1, 1, 37.3))
sketch17.addConstraint(Sketcher.Constraint("DistanceY", -1, 1, 0, 3, 75.4516))
pocket12 = body.newObject("PartDesign::Pocket", "Pocket011")
pocket12.Profile = sketch17
pocket12.Length = 3

# Sketch on an angled plane
sketch18 = body.newObject("Sketcher::SketchObject", "Sketch017")
sketch18.Placement = App.Placement(App.Vector(-50, 87.7758, 10.6), App.Rotation(App.Vector(0, 0.766044443, 0.64278761), App.Vector(-1, 0, 0), App.Vector(0, -0.64278761, 0.766044443), "ZXY"))
sketch18.addGeometry(Part.Circle(App.Vector(-12, -3, 0), App.Vector(0, 0, 1), 1.5), False)
sketch18.addGeometry(Part.Circle(App.Vector(-12.3, -96.9, 0), App.Vector(0, 0, 1), 1.5), False)
sketch18.addConstraint(Sketcher.Constraint("Equal", 0, 1))
sketch18.addConstraint(Sketcher.Constraint("Diameter", 0, 3.0))
sketch18.addConstraint(Sketcher.Constraint("DistanceY", 0, 3, -1, 1, 3.0))
sketch18.addConstraint(Sketcher.Constraint("DistanceX", 0, 3, -1, 1, 11.981))
sketch18.addConstraint(Sketcher.Constraint("DistanceX", 1, 3, -1, 1, 12.254))
sketch18.addConstraint(Sketcher.Constraint("DistanceY", 1, 3, -1, 1, 96.9087))
pocket13 = body.newObject("PartDesign::Pocket", "Pocket012")
pocket13.Profile = sketch18
pocket13.Type = "ThroughAll"
pocket13.Reversed = True

# Sketch on XY plane
sketch19 = body.newObject("Sketcher::SketchObject", "Sketch018")
sketch19.AttachmentSupport = (doc.getObject("XY_Plane"), [""])
sketch19.MapMode = "FlatFace"
sketch19.AttachmentOffset = App.Placement(App.Vector(0, 0, 8.5), App.Rotation())
sketch19.addGeometry(Part.LineSegment(App.Vector(-43, 69, 0), App.Vector(-43, 85, 0)), False)
sketch19.addGeometry(Part.LineSegment(App.Vector(-43, 85, 0), App.Vector(-50, 85, 0)), False)
sketch19.addGeometry(Part.LineSegment(App.Vector(-50, 85, 0), App.Vector(-50, 69, 0)), False)
sketch19.addGeometry(Part.LineSegment(App.Vector(-50, 69, 0), App.Vector(-43, 69, 0)), False)
sketch19.addGeometry(Part.LineSegment(App.Vector(50, 85, 0), App.Vector(43, 85, 0)), False)
sketch19.addGeometry(Part.LineSegment(App.Vector(43, 85, 0), App.Vector(43, 69, 0)), False)
sketch19.addGeometry(Part.LineSegment(App.Vector(43, 69, 0), App.Vector(50, 69, 0)), False)
sketch19.addGeometry(Part.LineSegment(App.Vector(50, 69, 0), App.Vector(50, 85, 0)), False)
sketch19.addConstraint(Sketcher.Constraint("Coincident", 0, 2, 1, 1))
sketch19.addConstraint(Sketcher.Constraint("Coincident", 1, 2, 2, 1))
sketch19.addConstraint(Sketcher.Constraint("Coincident", 2, 2, 3, 1))
sketch19.addConstraint(Sketcher.Constraint("Coincident", 3, 2, 0, 1))
sketch19.addConstraint(Sketcher.Constraint("Coincident", 4, 2, 5, 1))
sketch19.addConstraint(Sketcher.Constraint("Coincident", 5, 2, 6, 1))
sketch19.addConstraint(Sketcher.Constraint("Coincident", 6, 2, 7, 1))
sketch19.addConstraint(Sketcher.Constraint("Coincident", 7, 2, 4, 1))
sketch19.addConstraint(Sketcher.Constraint("Vertical", 0))
sketch19.addConstraint(Sketcher.Constraint("Horizontal", 1))
sketch19.addConstraint(Sketcher.Constraint("Vertical", 2))
sketch19.addConstraint(Sketcher.Constraint("Horizontal", 3))
sketch19.addConstraint(Sketcher.Constraint("Horizontal", 4))
sketch19.addConstraint(Sketcher.Constraint("Vertical", 5))
sketch19.addConstraint(Sketcher.Constraint("Horizontal", 6))
sketch19.addConstraint(Sketcher.Constraint("Vertical", 7))
sketch19.addConstraint(Sketcher.Constraint("Symmetric", 0, 2, 4, 2, -2))
sketch19.addConstraint(Sketcher.Constraint("Symmetric", 2, 2, 6, 2, -2))
sketch19.addConstraint(Sketcher.Constraint("DistanceX", 1, 2, 1, 1, 7.0))
sketch19.addConstraint(Sketcher.Constraint("DistanceY", 0, 1, 0, 2, 16.0))
sketch19.addConstraint(Sketcher.Constraint("DistanceX", 0, 2, -1, 1, 43.0))
sketch19.addConstraint(Sketcher.Constraint("DistanceY", -1, 1, 0, 2, 85.2732))
pocket14 = body.newObject("PartDesign::Pocket", "Pocket013")
pocket14.Profile = sketch19
pocket14.Length = 10

doc.recompute()
